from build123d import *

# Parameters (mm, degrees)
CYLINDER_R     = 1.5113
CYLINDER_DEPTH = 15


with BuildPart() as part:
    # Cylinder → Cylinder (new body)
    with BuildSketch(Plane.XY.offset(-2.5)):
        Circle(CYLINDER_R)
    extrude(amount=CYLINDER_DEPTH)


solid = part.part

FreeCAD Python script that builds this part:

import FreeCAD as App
import Part
import Sketcher
from FreeCAD import Vector

doc = App.newDocument("Part")
body = doc.addObject("PartDesign::Body", "Body")

# Sketch on XY plane
sketch1 = body.newObject("Sketcher::SketchObject", "Sketch")
sketch1.AttachmentSupport = (doc.getObject("XY_Plane"), [""])
sketch1.MapMode = "FlatFace"
sketch1.AttachmentOffset = App.Placement(Vector(0, 0, -2.5), App.Rotation())
sketch1.addGeometry(Part.Circle(Vector(0, 0, 0), Vector(0, 0, 1), 1.5), False)
sketch1.addConstraint(Sketcher.Constraint("Coincident", 0, 3, -1, 1))
sketch1.addConstraint(Sketcher.Constraint("Diameter", 0, 3.0226))
pad1 = body.newObject("PartDesign::Pad", "Pad")
pad1.Profile = sketch1
pad1.Length = 15

doc.recompute()
